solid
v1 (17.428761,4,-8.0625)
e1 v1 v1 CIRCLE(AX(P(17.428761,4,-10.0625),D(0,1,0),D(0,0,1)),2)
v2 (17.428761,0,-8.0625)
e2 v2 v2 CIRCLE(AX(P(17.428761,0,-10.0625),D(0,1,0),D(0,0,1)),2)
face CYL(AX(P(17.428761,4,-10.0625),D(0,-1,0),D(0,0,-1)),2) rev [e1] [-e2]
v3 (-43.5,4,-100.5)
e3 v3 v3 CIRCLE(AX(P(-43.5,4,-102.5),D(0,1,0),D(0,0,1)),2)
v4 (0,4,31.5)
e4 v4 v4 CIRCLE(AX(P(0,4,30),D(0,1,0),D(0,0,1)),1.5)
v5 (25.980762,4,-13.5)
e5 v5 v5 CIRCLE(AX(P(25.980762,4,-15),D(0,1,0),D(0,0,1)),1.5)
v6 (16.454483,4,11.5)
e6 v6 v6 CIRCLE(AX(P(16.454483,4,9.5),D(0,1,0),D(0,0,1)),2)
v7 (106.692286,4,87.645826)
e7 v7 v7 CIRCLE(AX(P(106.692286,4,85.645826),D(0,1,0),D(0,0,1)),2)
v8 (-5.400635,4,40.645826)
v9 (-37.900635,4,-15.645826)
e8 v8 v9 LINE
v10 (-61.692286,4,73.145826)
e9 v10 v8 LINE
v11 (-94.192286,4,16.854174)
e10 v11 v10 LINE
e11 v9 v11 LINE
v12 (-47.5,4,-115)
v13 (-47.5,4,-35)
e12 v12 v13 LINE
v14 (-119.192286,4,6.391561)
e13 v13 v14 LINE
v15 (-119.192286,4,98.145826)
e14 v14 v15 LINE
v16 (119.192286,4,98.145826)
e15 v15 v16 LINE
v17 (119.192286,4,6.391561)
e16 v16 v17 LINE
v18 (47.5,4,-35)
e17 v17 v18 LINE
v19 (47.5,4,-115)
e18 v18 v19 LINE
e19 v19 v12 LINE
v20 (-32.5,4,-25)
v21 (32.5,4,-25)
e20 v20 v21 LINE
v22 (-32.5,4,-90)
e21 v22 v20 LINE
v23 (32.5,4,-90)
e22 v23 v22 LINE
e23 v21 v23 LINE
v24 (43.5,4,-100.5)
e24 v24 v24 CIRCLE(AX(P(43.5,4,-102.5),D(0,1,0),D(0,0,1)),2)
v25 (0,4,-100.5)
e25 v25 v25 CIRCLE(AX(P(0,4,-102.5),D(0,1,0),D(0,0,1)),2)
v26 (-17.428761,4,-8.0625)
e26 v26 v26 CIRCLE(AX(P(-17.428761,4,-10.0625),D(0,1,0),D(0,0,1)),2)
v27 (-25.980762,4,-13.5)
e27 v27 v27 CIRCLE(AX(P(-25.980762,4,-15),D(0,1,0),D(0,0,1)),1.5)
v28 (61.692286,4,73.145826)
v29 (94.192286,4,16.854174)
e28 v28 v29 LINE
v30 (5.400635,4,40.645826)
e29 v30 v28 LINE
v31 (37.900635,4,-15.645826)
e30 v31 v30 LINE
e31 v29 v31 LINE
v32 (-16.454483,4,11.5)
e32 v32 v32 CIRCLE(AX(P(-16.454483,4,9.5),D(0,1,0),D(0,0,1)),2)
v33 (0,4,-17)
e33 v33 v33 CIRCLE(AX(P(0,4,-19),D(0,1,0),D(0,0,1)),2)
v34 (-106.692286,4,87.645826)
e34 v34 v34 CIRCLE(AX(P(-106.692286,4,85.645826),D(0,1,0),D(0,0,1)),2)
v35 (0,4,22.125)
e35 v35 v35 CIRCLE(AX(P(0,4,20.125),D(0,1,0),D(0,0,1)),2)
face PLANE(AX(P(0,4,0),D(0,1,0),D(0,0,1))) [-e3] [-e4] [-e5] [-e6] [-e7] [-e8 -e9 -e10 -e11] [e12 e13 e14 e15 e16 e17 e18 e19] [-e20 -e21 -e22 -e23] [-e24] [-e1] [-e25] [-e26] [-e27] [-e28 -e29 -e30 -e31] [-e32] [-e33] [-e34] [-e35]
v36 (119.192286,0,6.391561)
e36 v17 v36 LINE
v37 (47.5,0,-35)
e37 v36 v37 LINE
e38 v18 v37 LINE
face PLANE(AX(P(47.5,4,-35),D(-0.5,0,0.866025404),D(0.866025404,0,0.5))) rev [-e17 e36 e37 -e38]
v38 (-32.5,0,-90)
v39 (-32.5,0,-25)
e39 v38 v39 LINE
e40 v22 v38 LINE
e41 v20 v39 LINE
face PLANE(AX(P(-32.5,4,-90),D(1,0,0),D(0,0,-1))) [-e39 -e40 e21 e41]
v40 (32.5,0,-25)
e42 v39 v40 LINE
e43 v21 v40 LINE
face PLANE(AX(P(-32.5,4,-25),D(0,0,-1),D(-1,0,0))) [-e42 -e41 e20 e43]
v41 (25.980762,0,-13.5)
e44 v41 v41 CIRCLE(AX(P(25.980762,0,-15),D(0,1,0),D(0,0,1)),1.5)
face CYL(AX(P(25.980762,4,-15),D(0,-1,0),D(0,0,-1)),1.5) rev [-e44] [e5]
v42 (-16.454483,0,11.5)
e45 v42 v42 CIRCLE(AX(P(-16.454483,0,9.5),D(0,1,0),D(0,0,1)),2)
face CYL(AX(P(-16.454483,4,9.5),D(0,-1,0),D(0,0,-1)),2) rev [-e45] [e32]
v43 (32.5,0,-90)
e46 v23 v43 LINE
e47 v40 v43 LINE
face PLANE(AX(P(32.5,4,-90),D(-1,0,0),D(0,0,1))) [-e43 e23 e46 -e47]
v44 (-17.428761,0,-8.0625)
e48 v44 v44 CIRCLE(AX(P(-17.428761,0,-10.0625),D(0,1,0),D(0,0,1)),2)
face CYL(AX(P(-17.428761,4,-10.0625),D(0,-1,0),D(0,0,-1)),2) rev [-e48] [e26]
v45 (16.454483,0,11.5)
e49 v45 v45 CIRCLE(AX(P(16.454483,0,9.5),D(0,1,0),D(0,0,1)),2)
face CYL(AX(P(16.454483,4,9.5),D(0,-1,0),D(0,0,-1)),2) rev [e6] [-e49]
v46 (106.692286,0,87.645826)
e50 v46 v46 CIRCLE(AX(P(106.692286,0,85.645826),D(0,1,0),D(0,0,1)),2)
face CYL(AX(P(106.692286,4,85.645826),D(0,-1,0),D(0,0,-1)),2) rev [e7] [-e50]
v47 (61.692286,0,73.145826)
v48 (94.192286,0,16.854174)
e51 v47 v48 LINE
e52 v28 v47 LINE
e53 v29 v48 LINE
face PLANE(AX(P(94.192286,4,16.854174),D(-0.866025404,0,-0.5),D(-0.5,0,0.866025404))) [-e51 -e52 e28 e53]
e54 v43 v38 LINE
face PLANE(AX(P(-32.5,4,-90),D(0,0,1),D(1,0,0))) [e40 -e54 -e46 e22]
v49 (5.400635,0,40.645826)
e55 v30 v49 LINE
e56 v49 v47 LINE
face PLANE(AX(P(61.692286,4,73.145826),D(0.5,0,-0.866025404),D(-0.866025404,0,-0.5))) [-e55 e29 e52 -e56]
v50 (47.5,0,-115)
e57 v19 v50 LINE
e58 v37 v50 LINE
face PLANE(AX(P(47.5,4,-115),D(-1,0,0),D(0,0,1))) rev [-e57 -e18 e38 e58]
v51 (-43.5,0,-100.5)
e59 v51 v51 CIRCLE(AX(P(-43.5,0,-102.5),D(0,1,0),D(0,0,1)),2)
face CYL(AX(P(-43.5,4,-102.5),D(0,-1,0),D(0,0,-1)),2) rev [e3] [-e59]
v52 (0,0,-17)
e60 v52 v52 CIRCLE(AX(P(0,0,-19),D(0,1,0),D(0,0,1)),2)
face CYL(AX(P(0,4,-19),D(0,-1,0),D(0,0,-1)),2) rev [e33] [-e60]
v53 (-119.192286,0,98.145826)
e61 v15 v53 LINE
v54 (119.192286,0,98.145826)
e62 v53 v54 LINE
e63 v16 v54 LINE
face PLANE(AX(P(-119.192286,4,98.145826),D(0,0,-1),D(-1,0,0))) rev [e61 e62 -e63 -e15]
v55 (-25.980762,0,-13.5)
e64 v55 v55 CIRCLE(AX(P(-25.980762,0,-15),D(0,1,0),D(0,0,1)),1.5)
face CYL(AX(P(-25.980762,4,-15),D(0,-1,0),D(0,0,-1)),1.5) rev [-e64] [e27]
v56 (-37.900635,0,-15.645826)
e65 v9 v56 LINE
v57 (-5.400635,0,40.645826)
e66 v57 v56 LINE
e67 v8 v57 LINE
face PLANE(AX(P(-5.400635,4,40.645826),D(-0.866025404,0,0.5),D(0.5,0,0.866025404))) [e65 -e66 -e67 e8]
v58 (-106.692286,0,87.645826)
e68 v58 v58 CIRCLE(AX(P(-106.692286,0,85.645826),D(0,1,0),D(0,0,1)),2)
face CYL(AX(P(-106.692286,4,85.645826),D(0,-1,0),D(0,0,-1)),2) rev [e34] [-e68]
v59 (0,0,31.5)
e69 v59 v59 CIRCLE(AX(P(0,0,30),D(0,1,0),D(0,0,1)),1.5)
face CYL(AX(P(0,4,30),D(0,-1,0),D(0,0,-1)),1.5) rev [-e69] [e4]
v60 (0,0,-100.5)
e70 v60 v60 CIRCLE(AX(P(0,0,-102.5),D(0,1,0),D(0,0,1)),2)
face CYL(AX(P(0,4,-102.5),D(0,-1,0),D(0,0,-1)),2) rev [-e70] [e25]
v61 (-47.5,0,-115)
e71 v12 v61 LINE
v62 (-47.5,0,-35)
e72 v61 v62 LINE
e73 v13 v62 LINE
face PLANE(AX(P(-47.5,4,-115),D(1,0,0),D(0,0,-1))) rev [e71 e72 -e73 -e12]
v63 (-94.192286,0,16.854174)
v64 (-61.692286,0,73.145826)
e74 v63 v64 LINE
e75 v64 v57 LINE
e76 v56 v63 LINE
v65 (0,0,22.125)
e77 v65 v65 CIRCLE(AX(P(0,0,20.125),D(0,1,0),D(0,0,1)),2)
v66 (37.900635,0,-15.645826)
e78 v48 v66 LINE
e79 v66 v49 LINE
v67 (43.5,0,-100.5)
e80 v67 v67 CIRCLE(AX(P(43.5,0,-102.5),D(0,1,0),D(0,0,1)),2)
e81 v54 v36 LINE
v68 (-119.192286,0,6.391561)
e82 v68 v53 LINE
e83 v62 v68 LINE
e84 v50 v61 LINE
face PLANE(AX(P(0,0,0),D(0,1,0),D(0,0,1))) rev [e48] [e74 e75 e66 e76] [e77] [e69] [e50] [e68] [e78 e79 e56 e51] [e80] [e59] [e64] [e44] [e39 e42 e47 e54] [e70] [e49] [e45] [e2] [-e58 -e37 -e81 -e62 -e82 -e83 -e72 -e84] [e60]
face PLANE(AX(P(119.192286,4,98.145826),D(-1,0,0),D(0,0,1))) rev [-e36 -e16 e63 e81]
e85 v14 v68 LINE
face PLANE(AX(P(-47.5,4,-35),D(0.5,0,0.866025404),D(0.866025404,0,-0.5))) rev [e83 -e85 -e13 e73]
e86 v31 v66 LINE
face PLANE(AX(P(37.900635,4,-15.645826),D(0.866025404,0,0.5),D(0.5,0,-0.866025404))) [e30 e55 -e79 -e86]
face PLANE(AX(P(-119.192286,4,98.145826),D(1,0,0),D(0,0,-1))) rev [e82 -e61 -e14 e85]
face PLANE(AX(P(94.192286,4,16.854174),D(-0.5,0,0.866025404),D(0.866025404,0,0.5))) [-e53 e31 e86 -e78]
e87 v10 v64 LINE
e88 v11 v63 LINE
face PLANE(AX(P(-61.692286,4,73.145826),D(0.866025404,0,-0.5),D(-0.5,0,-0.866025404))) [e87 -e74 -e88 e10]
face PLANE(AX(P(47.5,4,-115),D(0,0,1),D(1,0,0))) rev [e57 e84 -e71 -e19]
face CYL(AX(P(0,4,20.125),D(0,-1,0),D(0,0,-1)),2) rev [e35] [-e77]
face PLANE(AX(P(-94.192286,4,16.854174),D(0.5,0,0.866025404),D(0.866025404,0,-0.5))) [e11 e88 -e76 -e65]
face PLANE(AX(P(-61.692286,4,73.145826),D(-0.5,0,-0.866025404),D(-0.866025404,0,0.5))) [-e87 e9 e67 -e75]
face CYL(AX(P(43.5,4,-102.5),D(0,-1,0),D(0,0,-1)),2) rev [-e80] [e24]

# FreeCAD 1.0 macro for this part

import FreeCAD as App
import Part
import Sketcher

V = App.Vector
Q = App.Units.Quantity


def add_polygon(sketch, points):
    """Adds a closed chain of lines whose ends are joined by coincident constraints."""
    first, n = sketch.GeometryCount, len(points)
    for a, b in zip(points, points[1:] + points[:1]):
        sketch.addGeometry(Part.LineSegment(App.Vector(*a, 0), App.Vector(*b, 0)), False)
    for i in range(n):
        sketch.addConstraint(Sketcher.Constraint("Coincident", first + i, 2, first + (i + 1) % n, 1))

doc = App.newDocument("Part")
params = doc.addObject("Spreadsheet::Sheet", "Params")
for row, (alias, value) in enumerate([
    ("sketch1_diameter", "4 mm"),
    ("sketch1_diameter2", "3 mm"),
    ("sketch1_width", "95 mm"),
    ("sketch1_width2", "65 mm"),
    ("sketch1_height", "80 mm"),
    ("pad1_length", "4 mm"),
], start=1):
    params.set(f"A{row}", alias)
    params.set(f"B{row}", "=" + value)
    params.setAlias(f"B{row}", alias)

body = doc.addObject("PartDesign::Body", "Body")

sketch1 = body.newObject("Sketcher::SketchObject", "Sketch")
sketch1.AttachmentSupport = (doc.getObject("XZ_Plane"), [""])
sketch1.MapMode = "FlatFace"
add_polygon(sketch1, [(119.192286, 98.145826), (119.192286, 6.391561), (47.5, -35), (47.5, -115), (-47.5, -115), (-47.5, -35), (-119.192286, 6.391561), (-119.192286, 98.145826)])
sketch1.addGeometry(Part.Circle(V(-106.692286, 85.645826, 0), V(0, 0, 1), 2), False)
add_polygon(sketch1, [(-37.900635, -15.645826), (-5.400635, 40.645826), (-61.692286, 73.145826), (-94.192286, 16.854174)])
sketch1.addGeometry(Part.Circle(V(-16.454483, 9.5, 0), V(0, 0, 1), 2), False)
sketch1.addGeometry(Part.Circle(V(106.692286, 85.645826, 0), V(0, 0, 1), 2), False)
sketch1.addGeometry(Part.Circle(V(0, 30, 0), V(0, 0, 1), 1.5), False)
sketch1.addGeometry(Part.Circle(V(0, 20.125, 0), V(0, 0, 1), 2), False)
add_polygon(sketch1, [(5.400635, 40.645826), (37.900635, -15.645826), (94.192286, 16.854174), (61.692286, 73.145826)])
sketch1.addGeometry(Part.Circle(V(16.454483, 9.5, 0), V(0, 0, 1), 2), False)
sketch1.addGeometry(Part.Circle(V(-17.428761, -10.0625, 0), V(0, 0, 1), 2), False)
sketch1.addGeometry(Part.Circle(V(-25.980762, -15, 0), V(0, 0, 1), 1.5), False)
sketch1.addGeometry(Part.Circle(V(-43.5, -102.5, 0), V(0, 0, 1), 2), False)
sketch1.addGeometry(Part.Circle(V(0, -19, 0), V(0, 0, 1), 2), False)
sketch1.addGeometry(Part.Circle(V(17.428761, -10.0625, 0), V(0, 0, 1), 2), False)
sketch1.addGeometry(Part.Circle(V(25.980762, -15, 0), V(0, 0, 1), 1.5), False)
add_polygon(sketch1, [(32.5, -25), (-32.5, -25), (-32.5, -90), (32.5, -90)])
sketch1.addGeometry(Part.Circle(V(0, -102.5, 0), V(0, 0, 1), 2), False)
sketch1.addGeometry(Part.Circle(V(43.5, -102.5, 0), V(0, 0, 1), 2), False)
sketch1.addConstraint([
    Sketcher.Constraint("Vertical", 0),
    Sketcher.Constraint("Vertical", 2),
    Sketcher.Constraint("Horizontal", 3),
    Sketcher.Constraint("Vertical", 4),
    Sketcher.Constraint("Vertical", 6),
    Sketcher.Constraint("Horizontal", 7),
    Sketcher.Constraint("Horizontal", 28),
    Sketcher.Constraint("Vertical", 29),
    Sketcher.Constraint("Horizontal", 30),
    Sketcher.Constraint("Vertical", 31),
    Sketcher.Constraint("Equal", 8, 13),
    Sketcher.Constraint("Equal", 13, 14),
    Sketcher.Constraint("Equal", 14, 16),
    Sketcher.Constraint("Equal", 16, 21),
    Sketcher.Constraint("Equal", 21, 22),
    Sketcher.Constraint("Equal", 15, 23),
    Sketcher.Constraint("Equal", 22, 24),
    Sketcher.Constraint("Equal", 24, 25),
    Sketcher.Constraint("Equal", 25, 26),
    Sketcher.Constraint("Equal", 23, 27),
    Sketcher.Constraint("Equal", 26, 32),
    Sketcher.Constraint("Equal", 32, 33),
    Sketcher.Constraint("Symmetric", 8, 3, 14, 3, -2),
    Sketcher.Constraint("Symmetric", 13, 3, 21, 3, -2),
    Sketcher.Constraint("Symmetric", 22, 3, 26, 3, -2),
    Sketcher.Constraint("Symmetric", 23, 3, 27, 3, -2),
    Sketcher.Constraint("Symmetric", 24, 3, 33, 3, -2),
    Sketcher.Constraint("Symmetric", 1, 2, 4, 2, -2),
    Sketcher.Constraint("Symmetric", 0, 2, 5, 2, -2),
    Sketcher.Constraint("Symmetric", 12, 2, 17, 2, -2),
    Sketcher.Constraint("Symmetric", 11, 2, 18, 2, -2),
    Sketcher.Constraint("Symmetric", 10, 2, 19, 2, -2),
    Sketcher.Constraint("Symmetric", 9, 2, 20, 2, -2),
    Sketcher.Constraint("PointOnObject", 15, 3, -2),
    Sketcher.Constraint("PointOnObject", 16, 3, -2),
    Sketcher.Constraint("PointOnObject", 25, 3, -2),
    Sketcher.Constraint("PointOnObject", 32, 3, -2),
    Sketcher.Constraint("Perpendicular", 5, 9),
    Sketcher.Constraint("Perpendicular", 9, 10),
    Sketcher.Constraint("Perpendicular", 10, 11),
    Sketcher.Constraint("Perpendicular", 11, 12),
    Sketcher.Constraint("Horizontal", 24, 3, 32, 3),
    Sketcher.Constraint("Equal", 30, 29),
    Sketcher.Constraint("Equal", 9, 10),
    Sketcher.Constraint("Diameter", 8, Q("4 mm")),
    Sketcher.Constraint("Diameter", 15, Q("3 mm")),
    Sketcher.Constraint("DistanceX", 3, 2, 3, 1, Q("95 mm")),
    Sketcher.Constraint("DistanceX", 28, 2, 28, 1, Q("65 mm")),
    Sketcher.Constraint("DistanceY", 2, 2, 2, 1, Q("80 mm")),
    Sketcher.Constraint("Angle", 1, Q("-150 deg")),
    Sketcher.Constraint("Distance", 9, Q("65 mm")),
    Sketcher.Constraint("DistanceY", -1, 1, 15, 3, Q("30 mm")),
    Sketcher.Constraint("DistanceY", 23, 3, -1, 1, Q("15 mm")),
    Sketcher.Constraint("DistanceY", 25, 3, -1, 1, Q("19 mm")),
    Sketcher.Constraint("DistanceY", 1, 2, -1, 1, Q("35 mm")),
    Sketcher.Constraint("DistanceY", 28, 2, -1, 1, Q("25 mm")),
    Sketcher.Constraint("DistanceY", 24, 3, 13, 3, Q("112 mm")),
    Sketcher.Constraint("DistanceX", 24, 3, 33, 3, Q("87 mm")),
    Sketcher.Constraint("DistanceX", 8, 3, 10, 2, Q("45 mm")),
    Sketcher.Constraint("DistanceY", 10, 2, 6, 2, Q("25 mm")),
    Sketcher.Constraint("DistanceX", 5, 2, 11, 2, Q("25 mm")),
    Sketcher.Constraint("DistanceX", 4, 2, 28, 2, Q("15 mm")),
    Sketcher.Constraint("DistanceY", -1, 1, 13, 3, Q("9.5 mm")),
    Sketcher.Constraint("DistanceY", 8, 3, 6, 2, Q("12.5 mm")),
    Sketcher.Constraint("DistanceY", -1, 1, 16, 3, Q("20.125 mm")),
    Sketcher.Constraint("DistanceX", 23, 3, 22, 3, Q("8.552001 mm")),
    Sketcher.Constraint("DistanceY", 22, 3, -1, 1, Q("10.0625 mm")),
    Sketcher.Constraint("Distance", 1, Q("82.783122 mm")),
    Sketcher.Constraint("DistanceY", 0, 2, 0, 1, Q("91.754265 mm")),
    Sketcher.Constraint("DistanceX", 22, 3, -1, 1, Q("17.428761 mm")),
    Sketcher.Constraint("DistanceX", 13, 3, 14, 3, Q("123.146769 mm")),
])
sketch1.setExpression("Constraints[64]", "Params.sketch1_diameter")
sketch1.setExpression("Constraints[65]", "Params.sketch1_diameter2")
sketch1.setExpression("Constraints[66]", "Params.sketch1_width")
sketch1.setExpression("Constraints[67]", "Params.sketch1_width2")
sketch1.setExpression("Constraints[68]", "Params.sketch1_height")
pad1 = body.newObject("PartDesign::Pad", "Pad")
pad1.Profile = sketch1
pad1.setExpression("Length", "Params.pad1_length")
pad1.Reversed = True

doc.recompute()
